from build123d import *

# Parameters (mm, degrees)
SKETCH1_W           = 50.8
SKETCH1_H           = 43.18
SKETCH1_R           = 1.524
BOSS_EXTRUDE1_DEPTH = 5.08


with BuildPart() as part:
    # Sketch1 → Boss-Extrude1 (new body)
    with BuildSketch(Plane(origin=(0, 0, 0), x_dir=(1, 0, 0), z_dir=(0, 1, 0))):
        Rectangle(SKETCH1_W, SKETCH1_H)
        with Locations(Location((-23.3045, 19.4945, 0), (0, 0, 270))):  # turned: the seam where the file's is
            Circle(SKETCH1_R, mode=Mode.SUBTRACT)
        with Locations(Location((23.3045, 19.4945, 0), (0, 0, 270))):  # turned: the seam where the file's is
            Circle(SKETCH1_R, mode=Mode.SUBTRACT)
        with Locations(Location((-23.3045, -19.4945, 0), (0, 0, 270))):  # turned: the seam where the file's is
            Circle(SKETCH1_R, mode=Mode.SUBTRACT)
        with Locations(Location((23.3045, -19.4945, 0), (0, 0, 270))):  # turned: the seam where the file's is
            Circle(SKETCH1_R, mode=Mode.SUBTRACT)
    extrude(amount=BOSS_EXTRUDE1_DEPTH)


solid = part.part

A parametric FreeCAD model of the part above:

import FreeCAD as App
import Part
import Sketcher

V = App.Vector
Q = App.Units.Quantity


def add_polygon(sketch, points):
    """Adds a closed chain of lines whose ends are joined by coincident constraints."""
    first, n = sketch.GeometryCount, len(points)
    for a, b in zip(points, points[1:] + points[:1]):
        sketch.addGeometry(Part.LineSegment(App.Vector(*a, 0), App.Vector(*b, 0)), False)
    for i in range(n):
        sketch.addConstraint(Sketcher.Constraint("Coincident", first + i, 2, first + (i + 1) % n, 1))

doc = App.newDocument("Part")
params = doc.addObject("Spreadsheet::Sheet", "Params")
for row, (alias, value) in enumerate([
    ("sketch1_diameter", "0.12 in"),
    ("sketch1_width", "2 in"),
    ("sketch1_height", "1.7 in"),
    ("pad1_length", "0.2 in"),
], start=1):
    params.set(f"A{row}", alias)
    params.set(f"B{row}", "=" + value)
    params.setAlias(f"B{row}", alias)

body = doc.addObject("PartDesign::Body", "Body")

sketch1 = doc.addObject("Sketcher::SketchObject", "Sketch")
body.addObject(sketch1)
sketch1.AttachmentSupport = (doc.XZ_Plane, [""])
sketch1.MapMode = "FlatFace"
add_polygon(sketch1, [(-25.4, -21.6), (-25.4, 21.6), (25.4, 21.6), (25.4, -21.6)])
sketch1.addGeometry(Part.Circle(V(-23.3, 19.5, 0), V(0, 0, 1), 1.5), False)
sketch1.addGeometry(Part.Circle(V(23.3, 19.5, 0), V(0, 0, 1), 1.5), False)
sketch1.addGeometry(Part.Circle(V(-23.3, -19.5, 0), V(0, 0, 1), 1.5), False)
sketch1.addGeometry(Part.Circle(V(23.3, -19.5, 0), V(0, 0, 1), 1.5), False)
sketch1.addConstraint([
    Sketcher.Constraint("Vertical", 0),
    Sketcher.Constraint("Horizontal", 1),
    Sketcher.Constraint("Vertical", 2),
    Sketcher.Constraint("Horizontal", 3),
    Sketcher.Constraint("Equal", 4, 5),
    Sketcher.Constraint("Equal", 5, 6),
    Sketcher.Constraint("Equal", 6, 7),
    Sketcher.Constraint("Symmetric", 5, 3, 6, 3, -1, 1),
    Sketcher.Constraint("Symmetric", 4, 3, 7, 3, -1, 1),
    Sketcher.Constraint("Symmetric", 0, 2, 2, 2, -1, 1),
    Sketcher.Constraint("Symmetric", 4, 3, 5, 3, -2),
    Sketcher.Constraint("Diameter", 4, Q("0.12 in")),
    Sketcher.Constraint("DistanceX", 1, 1, 1, 2, Q("2 in")),
    Sketcher.Constraint("DistanceY", 0, 1, 0, 2, Q("1.7 in")),
    Sketcher.Constraint("DistanceX", 4, 3, 5, 3, Q("1.835 in")),
    Sketcher.Constraint("DistanceY", 6, 3, 4, 3, Q("1.535 in")),
])
sketch1.setExpression("Constraints[15]", "Params.sketch1_diameter")
sketch1.setExpression("Constraints[16]", "Params.sketch1_width")
sketch1.setExpression("Constraints[17]", "Params.sketch1_height")
pad1 = doc.addObject("PartDesign::Pad", "Pad")
body.addObject(pad1)
pad1.Profile = sketch1
pad1.setExpression("Length", "Params.pad1_length")
pad1.Reversed = True

doc.recompute()
